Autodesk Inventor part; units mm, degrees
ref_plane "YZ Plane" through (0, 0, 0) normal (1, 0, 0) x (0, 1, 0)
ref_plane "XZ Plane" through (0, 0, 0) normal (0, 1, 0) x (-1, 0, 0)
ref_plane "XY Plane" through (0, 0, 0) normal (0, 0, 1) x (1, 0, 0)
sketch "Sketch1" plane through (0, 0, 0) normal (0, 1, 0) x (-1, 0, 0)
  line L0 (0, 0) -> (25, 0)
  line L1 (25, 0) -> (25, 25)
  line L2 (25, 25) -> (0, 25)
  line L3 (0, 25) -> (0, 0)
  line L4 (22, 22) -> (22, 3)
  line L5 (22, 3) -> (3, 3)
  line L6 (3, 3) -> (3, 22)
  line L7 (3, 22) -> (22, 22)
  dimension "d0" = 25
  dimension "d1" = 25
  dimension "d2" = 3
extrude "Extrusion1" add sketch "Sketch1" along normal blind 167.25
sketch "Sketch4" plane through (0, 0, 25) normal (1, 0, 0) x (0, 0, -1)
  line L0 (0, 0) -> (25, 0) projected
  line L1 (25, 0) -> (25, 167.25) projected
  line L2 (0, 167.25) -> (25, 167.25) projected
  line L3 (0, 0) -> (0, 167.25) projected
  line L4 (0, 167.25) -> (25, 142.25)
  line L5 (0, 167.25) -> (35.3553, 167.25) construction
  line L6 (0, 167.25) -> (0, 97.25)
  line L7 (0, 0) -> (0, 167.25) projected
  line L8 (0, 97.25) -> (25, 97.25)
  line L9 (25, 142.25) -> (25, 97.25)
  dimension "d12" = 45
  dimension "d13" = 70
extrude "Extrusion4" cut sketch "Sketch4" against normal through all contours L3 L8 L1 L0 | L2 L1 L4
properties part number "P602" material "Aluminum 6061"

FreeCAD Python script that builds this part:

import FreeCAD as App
import Part
import Sketcher

V = App.Vector
Q = App.Units.Quantity


def add_polygon(sketch, points):
    """Adds a closed chain of lines whose ends are joined by coincident constraints."""
    first, n = sketch.GeometryCount, len(points)
    for a, b in zip(points, points[1:] + points[:1]):
        sketch.addGeometry(Part.LineSegment(App.Vector(*a, 0), App.Vector(*b, 0)), False)
    for i in range(n):
        sketch.addConstraint(Sketcher.Constraint("Coincident", first + i, 2, first + (i + 1) % n, 1))

doc = App.newDocument("Part")
body = doc.addObject("PartDesign::Body", "Body")

# Sketch on XZ plane
sketch1 = body.newObject("Sketcher::SketchObject", "Sketch")
sketch1.AttachmentSupport = (doc.getObject("XZ_Plane"), [""])
sketch1.MapMode = "FlatFace"
add_polygon(sketch1, [(0, 25), (0, 0), (-25, 0), (-25, 25)])  # lines 0-3
add_polygon(sketch1, [(-3, 22), (-22, 22), (-22, 3), (-3, 3)])  # lines 4-7
sketch1.addConstraint(Sketcher.Constraint("Vertical", 0))
sketch1.addConstraint(Sketcher.Constraint("Horizontal", 1))
sketch1.addConstraint(Sketcher.Constraint("Vertical", 2))
sketch1.addConstraint(Sketcher.Constraint("Horizontal", 3))
sketch1.addConstraint(Sketcher.Constraint("Horizontal", 4))
sketch1.addConstraint(Sketcher.Constraint("Vertical", 5))
sketch1.addConstraint(Sketcher.Constraint("Horizontal", 6))
sketch1.addConstraint(Sketcher.Constraint("Vertical", 7))
sketch1.addConstraint(Sketcher.Constraint("Coincident", 0, 2, -1, 1))
sketch1.addConstraint(Sketcher.Constraint("Equal", 3, 0))
sketch1.addConstraint(Sketcher.Constraint("Equal", 6, 5))
sketch1.addConstraint(Sketcher.Constraint("DistanceX", 1, 2, 1, 1, Q("25 mm")))
sketch1.addConstraint(Sketcher.Constraint("DistanceY", -1, 1, 5, 2, Q("3 mm")))
sketch1.addConstraint(Sketcher.Constraint("DistanceX", 6, 2, -1, 1, Q("3 mm")))
sketch1.addConstraint(Sketcher.Constraint("DistanceX", 2, 2, 4, 2, Q("3 mm")))
pad1 = body.newObject("PartDesign::Pad", "Pad")
pad1.Profile = sketch1
pad1.Length = 167.25
pad1.Reversed = True

# Sketch on YZ plane
sketch2 = body.newObject("Sketcher::SketchObject", "Sketch001")
sketch2.AttachmentSupport = (doc.getObject("YZ_Plane"), [""])
sketch2.MapMode = "FlatFace"
add_polygon(sketch2, [(97, 25), (0, 25), (0, 0), (97, 0)])  # lines 0-3
add_polygon(sketch2, [(167, 0), (167, 25), (142, 0)])  # lines 4-6
sketch2.addConstraint(Sketcher.Constraint("Horizontal", 0))
sketch2.addConstraint(Sketcher.Constraint("Vertical", 1))
sketch2.addConstraint(Sketcher.Constraint("Horizontal", 2))
sketch2.addConstraint(Sketcher.Constraint("Vertical", 3))
sketch2.addConstraint(Sketcher.Constraint("Vertical", 4))
sketch2.addConstraint(Sketcher.Constraint("Horizontal", 6))
sketch2.addConstraint(Sketcher.Constraint("Coincident", 1, 2, -1, 1))
sketch2.addConstraint(Sketcher.Constraint("PointOnObject", 5, 2, -1))
sketch2.addConstraint(Sketcher.Constraint("Horizontal", 3, 2, 4, 2))
sketch2.addConstraint(Sketcher.Constraint("Equal", 6, 1))
sketch2.addConstraint(Sketcher.Constraint("DistanceX", 3, 2, 4, 2, Q("70 mm")))
sketch2.addConstraint(Sketcher.Constraint("DistanceX", 2, 2, 5, 2, Q("45 mm")))
sketch2.addConstraint(Sketcher.Constraint("DistanceX", 0, 2, 0, 1, Q("97.25 mm")))
pocket1 = body.newObject("PartDesign::Pocket", "Pocket")
pocket1.Profile = sketch2
pocket1.Type = "ThroughAll"

doc.recompute()
